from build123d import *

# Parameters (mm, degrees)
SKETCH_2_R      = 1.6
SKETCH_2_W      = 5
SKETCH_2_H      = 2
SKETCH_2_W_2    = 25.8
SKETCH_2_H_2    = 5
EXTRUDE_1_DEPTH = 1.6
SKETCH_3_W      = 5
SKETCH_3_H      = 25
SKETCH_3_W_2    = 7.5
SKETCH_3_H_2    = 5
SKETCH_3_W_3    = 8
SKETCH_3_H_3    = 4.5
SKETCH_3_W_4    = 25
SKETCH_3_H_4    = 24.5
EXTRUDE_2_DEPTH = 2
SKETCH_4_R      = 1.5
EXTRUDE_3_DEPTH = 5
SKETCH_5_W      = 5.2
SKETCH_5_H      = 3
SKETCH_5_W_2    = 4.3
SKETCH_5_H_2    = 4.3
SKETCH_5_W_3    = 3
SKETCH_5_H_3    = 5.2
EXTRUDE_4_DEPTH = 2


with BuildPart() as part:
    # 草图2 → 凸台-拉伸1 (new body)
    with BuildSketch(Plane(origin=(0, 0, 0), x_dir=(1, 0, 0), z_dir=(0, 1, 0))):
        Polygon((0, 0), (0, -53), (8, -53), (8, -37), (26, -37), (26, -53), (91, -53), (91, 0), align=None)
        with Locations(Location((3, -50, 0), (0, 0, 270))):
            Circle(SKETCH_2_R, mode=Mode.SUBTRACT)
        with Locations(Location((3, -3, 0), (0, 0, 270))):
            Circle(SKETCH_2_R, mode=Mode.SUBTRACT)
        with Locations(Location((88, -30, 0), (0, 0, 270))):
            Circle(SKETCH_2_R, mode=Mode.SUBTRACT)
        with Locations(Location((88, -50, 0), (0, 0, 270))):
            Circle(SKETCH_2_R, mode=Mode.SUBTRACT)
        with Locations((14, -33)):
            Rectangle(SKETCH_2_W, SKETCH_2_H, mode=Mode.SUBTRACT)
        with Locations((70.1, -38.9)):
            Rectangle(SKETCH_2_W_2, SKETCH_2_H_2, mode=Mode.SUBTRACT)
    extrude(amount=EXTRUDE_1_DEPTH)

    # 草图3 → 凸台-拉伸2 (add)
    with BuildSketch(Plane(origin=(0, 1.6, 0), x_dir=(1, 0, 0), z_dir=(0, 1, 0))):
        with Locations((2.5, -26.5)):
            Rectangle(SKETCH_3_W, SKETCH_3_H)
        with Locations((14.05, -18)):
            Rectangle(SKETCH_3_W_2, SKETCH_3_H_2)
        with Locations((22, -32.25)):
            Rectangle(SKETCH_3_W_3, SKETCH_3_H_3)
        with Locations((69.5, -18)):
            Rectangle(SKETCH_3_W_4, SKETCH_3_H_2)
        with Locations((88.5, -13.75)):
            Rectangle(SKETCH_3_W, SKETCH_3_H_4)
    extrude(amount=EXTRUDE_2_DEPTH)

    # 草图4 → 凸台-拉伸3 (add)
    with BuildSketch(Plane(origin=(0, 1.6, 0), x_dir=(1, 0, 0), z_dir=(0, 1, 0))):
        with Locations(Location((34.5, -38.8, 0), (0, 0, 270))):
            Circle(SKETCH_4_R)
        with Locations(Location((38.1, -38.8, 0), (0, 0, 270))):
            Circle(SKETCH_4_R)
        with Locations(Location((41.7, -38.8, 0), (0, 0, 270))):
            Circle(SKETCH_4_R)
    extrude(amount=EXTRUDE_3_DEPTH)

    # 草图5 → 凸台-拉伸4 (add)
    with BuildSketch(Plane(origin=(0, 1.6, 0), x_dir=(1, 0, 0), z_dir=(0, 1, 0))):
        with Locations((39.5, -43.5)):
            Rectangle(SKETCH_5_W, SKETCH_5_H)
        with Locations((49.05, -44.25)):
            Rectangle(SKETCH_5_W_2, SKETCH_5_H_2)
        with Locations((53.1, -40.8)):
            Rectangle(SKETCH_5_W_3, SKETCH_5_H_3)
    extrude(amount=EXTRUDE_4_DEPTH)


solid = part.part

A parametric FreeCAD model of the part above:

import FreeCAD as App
import Part
import Sketcher

doc = App.newDocument("Part")
body = doc.addObject("PartDesign::Body", "Body")

sketch1 = body.newObject("Sketcher::SketchObject", "Sketch")
sketch1.AttachmentSupport = (doc.getObject("XZ_Plane"), [""])
sketch1.MapMode = "FlatFace"
sketch1.addGeometry([
    Part.LineSegment(App.Vector(0, 0, 0), App.Vector(0, 53, 0)),
    Part.LineSegment(App.Vector(0, 53, 0), App.Vector(8, 53, 0)),
    Part.LineSegment(App.Vector(8, 53, 0), App.Vector(8, 37, 0)),
    Part.LineSegment(App.Vector(8, 37, 0), App.Vector(26, 37, 0)),
    Part.LineSegment(App.Vector(26, 37, 0), App.Vector(26, 53, 0)),
    Part.LineSegment(App.Vector(26, 53, 0), App.Vector(91, 53, 0)),
    Part.LineSegment(App.Vector(91, 53, 0), App.Vector(91, 0, 0)),
    Part.LineSegment(App.Vector(91, 0, 0), App.Vector(0, 0, 0)),
    Part.Circle(App.Vector(3, 50, 0), App.Vector(0, 0, 1), 1.6),
    Part.LineSegment(App.Vector(16.5, 34, 0), App.Vector(11.5, 34, 0)),
    Part.LineSegment(App.Vector(11.5, 34, 0), App.Vector(11.5, 32, 0)),
    Part.LineSegment(App.Vector(11.5, 32, 0), App.Vector(16.5, 32, 0)),
    Part.LineSegment(App.Vector(16.5, 32, 0), App.Vector(16.5, 34, 0)),
    Part.Circle(App.Vector(88, 50, 0), App.Vector(0, 0, 1), 1.6),
    Part.LineSegment(App.Vector(83, 41.4, 0), App.Vector(57.2, 41.4, 0)),
    Part.LineSegment(App.Vector(57.2, 41.4, 0), App.Vector(57.2, 36.4, 0)),
    Part.LineSegment(App.Vector(57.2, 36.4, 0), App.Vector(83, 36.4, 0)),
    Part.LineSegment(App.Vector(83, 36.4, 0), App.Vector(83, 41.4, 0)),
    Part.Circle(App.Vector(88, 30, 0), App.Vector(0, 0, 1), 1.6),
    Part.Circle(App.Vector(3, 3, 0), App.Vector(0, 0, 1), 1.6),
], False)
sketch1.addConstraint([
    Sketcher.Constraint("Coincident", 0, 2, 1, 1),
    Sketcher.Constraint("Coincident", 1, 2, 2, 1),
    Sketcher.Constraint("Coincident", 2, 2, 3, 1),
    Sketcher.Constraint("Coincident", 3, 2, 4, 1),
    Sketcher.Constraint("Coincident", 4, 2, 5, 1),
    Sketcher.Constraint("Coincident", 5, 2, 6, 1),
    Sketcher.Constraint("Coincident", 6, 2, 7, 1),
    Sketcher.Constraint("Coincident", 7, 2, 0, 1),
    Sketcher.Constraint("Coincident", 9, 2, 10, 1),
    Sketcher.Constraint("Coincident", 10, 2, 11, 1),
    Sketcher.Constraint("Coincident", 11, 2, 12, 1),
    Sketcher.Constraint("Coincident", 12, 2, 9, 1),
    Sketcher.Constraint("Coincident", 14, 2, 15, 1),
    Sketcher.Constraint("Coincident", 15, 2, 16, 1),
    Sketcher.Constraint("Coincident", 16, 2, 17, 1),
    Sketcher.Constraint("Coincident", 17, 2, 14, 1),
    Sketcher.Constraint("Vertical", 0),
    Sketcher.Constraint("Horizontal", 1),
    Sketcher.Constraint("Vertical", 2),
    Sketcher.Constraint("Horizontal", 3),
    Sketcher.Constraint("Vertical", 4),
    Sketcher.Constraint("Horizontal", 5),
    Sketcher.Constraint("Vertical", 6),
    Sketcher.Constraint("Horizontal", 7),
    Sketcher.Constraint("Horizontal", 9),
    Sketcher.Constraint("Vertical", 10),
    Sketcher.Constraint("Horizontal", 11),
    Sketcher.Constraint("Vertical", 12),
    Sketcher.Constraint("Horizontal", 14),
    Sketcher.Constraint("Vertical", 15),
    Sketcher.Constraint("Horizontal", 16),
    Sketcher.Constraint("Vertical", 17),
    Sketcher.Constraint("Coincident", 7, 2, -1, 1),
    Sketcher.Constraint("Equal", 8, 13),
    Sketcher.Constraint("Equal", 13, 18),
    Sketcher.Constraint("Equal", 18, 19),
    Sketcher.Constraint("Horizontal", 8, 3, 13, 3),
    Sketcher.Constraint("Horizontal", 1, 2, 4, 2),
    Sketcher.Constraint("Vertical", 13, 3, 18, 3),
    Sketcher.Constraint("Vertical", 8, 3, 19, 3),
    Sketcher.Constraint("Equal", 11, 15),
    Sketcher.Constraint("Diameter", 8, 3.2),
    Sketcher.Constraint("DistanceX", 1, 1, 1, 2, 8.0),
    Sketcher.Constraint("DistanceX", 3, 1, 3, 2, 18.0),
    Sketcher.Constraint("DistanceX", 5, 1, 5, 2, 65.0),
    Sketcher.Constraint("DistanceX", 9, 2, 9, 1, 5.0),
    Sketcher.Constraint("DistanceY", 0, 1, 0, 2, 53.0),
    Sketcher.Constraint("DistanceY", 2, 2, 2, 1, 16.0),
    Sketcher.Constraint("DistanceY", 10, 2, 10, 1, 2.0),
    Sketcher.Constraint("DistanceX", 14, 2, 14, 1, 25.8),
    Sketcher.Constraint("DistanceX", -1, 1, 8, 3, 3.0),
    Sketcher.Constraint("DistanceY", -1, 1, 8, 3, 50.0),
    Sketcher.Constraint("DistanceX", -1, 1, 13, 3, 88.0),
    Sketcher.Constraint("DistanceY", -1, 1, 18, 3, 30.0),
    Sketcher.Constraint("DistanceY", -1, 1, 19, 3, 3.0),
    Sketcher.Constraint("DistanceY", -1, 1, 9, 2, 34.0),
    Sketcher.Constraint("DistanceX", -1, 1, 16, 2, 83.0),
    Sketcher.Constraint("DistanceX", -1, 1, 9, 2, 11.5),
    Sketcher.Constraint("DistanceY", -1, 1, 14, 2, 41.4),
])
pad1 = body.newObject("PartDesign::Pad", "Pad")
pad1.Profile = sketch1
pad1.Length = 1.6
pad1.Reversed = True

sketch2 = body.newObject("Sketcher::SketchObject", "Sketch001")
sketch2.AttachmentSupport = (doc.getObject("XZ_Plane"), [""])
sketch2.MapMode = "FlatFace"
sketch2.AttachmentOffset = App.Placement(App.Vector(0, 0, -1.6), App.Rotation())
sketch2.addGeometry([
    Part.LineSegment(App.Vector(0, 14, 0), App.Vector(0, 39, 0)),
    Part.LineSegment(App.Vector(0, 39, 0), App.Vector(5, 39, 0)),
    Part.LineSegment(App.Vector(5, 39, 0), App.Vector(5, 14, 0)),
    Part.LineSegment(App.Vector(5, 14, 0), App.Vector(0, 14, 0)),
    Part.LineSegment(App.Vector(10.3, 15.5, 0), App.Vector(10.3, 20.5, 0)),
    Part.LineSegment(App.Vector(10.3, 20.5, 0), App.Vector(17.8, 20.5, 0)),
    Part.LineSegment(App.Vector(17.8, 20.5, 0), App.Vector(17.8, 15.5, 0)),
    Part.LineSegment(App.Vector(17.8, 15.5, 0), App.Vector(10.3, 15.5, 0)),
    Part.LineSegment(App.Vector(18, 30, 0), App.Vector(18, 34.5, 0)),
    Part.LineSegment(App.Vector(18, 34.5, 0), App.Vector(26, 34.5, 0)),
    Part.LineSegment(App.Vector(26, 34.5, 0), App.Vector(26, 30, 0)),
    Part.LineSegment(App.Vector(26, 30, 0), App.Vector(18, 30, 0)),
    Part.LineSegment(App.Vector(57, 15.5, 0), App.Vector(57, 20.5, 0)),
    Part.LineSegment(App.Vector(57, 20.5, 0), App.Vector(82, 20.5, 0)),
    Part.LineSegment(App.Vector(82, 20.5, 0), App.Vector(82, 15.5, 0)),
    Part.LineSegment(App.Vector(82, 15.5, 0), App.Vector(57, 15.5, 0)),
    Part.LineSegment(App.Vector(86, 1.5, 0), App.Vector(86, 26, 0)),
    Part.LineSegment(App.Vector(86, 26, 0), App.Vector(91, 26, 0)),
    Part.LineSegment(App.Vector(91, 26, 0), App.Vector(91, 1.5, 0)),
    Part.LineSegment(App.Vector(91, 1.5, 0), App.Vector(86, 1.5, 0)),
], False)
sketch2.addConstraint([
    Sketcher.Constraint("Coincident", 0, 2, 1, 1),
    Sketcher.Constraint("Coincident", 1, 2, 2, 1),
    Sketcher.Constraint("Coincident", 2, 2, 3, 1),
    Sketcher.Constraint("Coincident", 3, 2, 0, 1),
    Sketcher.Constraint("Coincident", 4, 2, 5, 1),
    Sketcher.Constraint("Coincident", 5, 2, 6, 1),
    Sketcher.Constraint("Coincident", 6, 2, 7, 1),
    Sketcher.Constraint("Coincident", 7, 2, 4, 1),
    Sketcher.Constraint("Coincident", 8, 2, 9, 1),
    Sketcher.Constraint("Coincident", 9, 2, 10, 1),
    Sketcher.Constraint("Coincident", 10, 2, 11, 1),
    Sketcher.Constraint("Coincident", 11, 2, 8, 1),
    Sketcher.Constraint("Coincident", 12, 2, 13, 1),
    Sketcher.Constraint("Coincident", 13, 2, 14, 1),
    Sketcher.Constraint("Coincident", 14, 2, 15, 1),
    Sketcher.Constraint("Coincident", 15, 2, 12, 1),
    Sketcher.Constraint("Coincident", 16, 2, 17, 1),
    Sketcher.Constraint("Coincident", 17, 2, 18, 1),
    Sketcher.Constraint("Coincident", 18, 2, 19, 1),
    Sketcher.Constraint("Coincident", 19, 2, 16, 1),
    Sketcher.Constraint("Vertical", 0),
    Sketcher.Constraint("Horizontal", 1),
    Sketcher.Constraint("Vertical", 2),
    Sketcher.Constraint("Horizontal", 3),
    Sketcher.Constraint("Vertical", 4),
    Sketcher.Constraint("Horizontal", 5),
    Sketcher.Constraint("Vertical", 6),
    Sketcher.Constraint("Horizontal", 7),
    Sketcher.Constraint("Vertical", 8),
    Sketcher.Constraint("Horizontal", 9),
    Sketcher.Constraint("Vertical", 10),
    Sketcher.Constraint("Horizontal", 11),
    Sketcher.Constraint("Vertical", 12),
    Sketcher.Constraint("Horizontal", 13),
    Sketcher.Constraint("Vertical", 14),
    Sketcher.Constraint("Horizontal", 15),
    Sketcher.Constraint("Vertical", 16),
    Sketcher.Constraint("Horizontal", 17),
    Sketcher.Constraint("Vertical", 18),
    Sketcher.Constraint("Horizontal", 19),
    Sketcher.Constraint("PointOnObject", 0, 2, -2),
    Sketcher.Constraint("Horizontal", 5, 2, 12, 2),
    Sketcher.Constraint("Horizontal", 7, 2, 14, 2),
    Sketcher.Constraint("Equal", 3, 17),
    Sketcher.Constraint("Equal", 15, 0),
    Sketcher.Constraint("Equal", 19, 4),
    Sketcher.Constraint("DistanceX", 1, 1, 1, 2, 5.0),
    Sketcher.Constraint("DistanceX", 9, 1, 9, 2, 8.0),
    Sketcher.Constraint("DistanceX", 13, 1, 13, 2, 25.0),
    Sketcher.Constraint("DistanceX", 5, 1, 5, 2, 7.5),
    Sketcher.Constraint("DistanceY", 8, 1, 8, 2, 4.5),
    Sketcher.Constraint("DistanceY", 16, 1, 16, 2, 24.5),
    Sketcher.Constraint("DistanceY", -1, 1, 0, 2, 39.0),
    Sketcher.Constraint("DistanceX", -1, 1, 8, 2, 18.0),
    Sketcher.Constraint("DistanceY", -1, 1, 10, 2, 30.0),
    Sketcher.Constraint("DistanceX", -1, 1, 12, 2, 57.0),
    Sketcher.Constraint("DistanceX", -1, 1, 16, 2, 86.0),
    Sketcher.Constraint("DistanceY", -1, 1, 16, 2, 26.0),
    Sketcher.Constraint("DistanceY", 5, 2, 8, 2, 14.0),
    Sketcher.Constraint("DistanceX", -1, 1, 4, 2, 10.3),
])
pad2 = body.newObject("PartDesign::Pad", "Pad001")
pad2.Profile = sketch2
pad2.Length = 2
pad2.Reversed = True

sketch3 = body.newObject("Sketcher::SketchObject", "Sketch002")
sketch3.AttachmentSupport = (doc.getObject("XZ_Plane"), [""])
sketch3.MapMode = "FlatFace"
sketch3.AttachmentOffset = App.Placement(App.Vector(0, 0, -1.6), App.Rotation())
sketch3.addGeometry([
    Part.Circle(App.Vector(34.5, 38.8, 0), App.Vector(0, 0, 1), 1.5),
    Part.Circle(App.Vector(38.1, 38.8, 0), App.Vector(0, 0, 1), 1.5),
    Part.Circle(App.Vector(41.7, 38.8, 0), App.Vector(0, 0, 1), 1.5),
], False)
sketch3.addConstraint([
    Sketcher.Constraint("Equal", 0, 1),
    Sketcher.Constraint("Equal", 1, 2),
    Sketcher.Constraint("Horizontal", 0, 3, 1, 3),
    Sketcher.Constraint("Horizontal", 1, 3, 2, 3),
    Sketcher.Constraint("Diameter", 0, 3.0),
    Sketcher.Constraint("DistanceX", -1, 1, 0, 3, 34.5),
    Sketcher.Constraint("DistanceY", -1, 1, 0, 3, 38.8),
    Sketcher.Constraint("DistanceX", -1, 1, 1, 3, 38.1),
    Sketcher.Constraint("DistanceX", -1, 1, 2, 3, 41.7),
])
pad3 = body.newObject("PartDesign::Pad", "Pad002")
pad3.Profile = sketch3
pad3.Length = 5
pad3.Reversed = True

sketch4 = body.newObject("Sketcher::SketchObject", "Sketch003")
sketch4.AttachmentSupport = (doc.getObject("XZ_Plane"), [""])
sketch4.MapMode = "FlatFace"
sketch4.AttachmentOffset = App.Placement(App.Vector(0, 0, -1.6), App.Rotation())
sketch4.addGeometry([
    Part.LineSegment(App.Vector(36.9, 42, 0), App.Vector(36.9, 45, 0)),
    Part.LineSegment(App.Vector(36.9, 45, 0), App.Vector(42.1, 45, 0)),
    Part.LineSegment(App.Vector(42.1, 45, 0), App.Vector(42.1, 42, 0)),
    Part.LineSegment(App.Vector(42.1, 42, 0), App.Vector(36.9, 42, 0)),
    Part.LineSegment(App.Vector(46.9, 42.1, 0), App.Vector(46.9, 46.4, 0)),
    Part.LineSegment(App.Vector(46.9, 46.4, 0), App.Vector(51.2, 46.4, 0)),
    Part.LineSegment(App.Vector(51.2, 46.4, 0), App.Vector(51.2, 42.1, 0)),
    Part.LineSegment(App.Vector(51.2, 42.1, 0), App.Vector(46.9, 42.1, 0)),
    Part.LineSegment(App.Vector(51.6, 38.2, 0), App.Vector(51.6, 43.4, 0)),
    Part.LineSegment(App.Vector(51.6, 43.4, 0), App.Vector(54.6, 43.4, 0)),
    Part.LineSegment(App.Vector(54.6, 43.4, 0), App.Vector(54.6, 38.2, 0)),
    Part.LineSegment(App.Vector(54.6, 38.2, 0), App.Vector(51.6, 38.2, 0)),
], False)
sketch4.addConstraint([
    Sketcher.Constraint("Coincident", 0, 2, 1, 1),
    Sketcher.Constraint("Coincident", 1, 2, 2, 1),
    Sketcher.Constraint("Coincident", 2, 2, 3, 1),
    Sketcher.Constraint("Coincident", 3, 2, 0, 1),
    Sketcher.Constraint("Coincident", 4, 2, 5, 1),
    Sketcher.Constraint("Coincident", 5, 2, 6, 1),
    Sketcher.Constraint("Coincident", 6, 2, 7, 1),
    Sketcher.Constraint("Coincident", 7, 2, 4, 1),
    Sketcher.Constraint("Coincident", 8, 2, 9, 1),
    Sketcher.Constraint("Coincident", 9, 2, 10, 1),
    Sketcher.Constraint("Coincident", 10, 2, 11, 1),
    Sketcher.Constraint("Coincident", 11, 2, 8, 1),
    Sketcher.Constraint("Vertical", 0),
    Sketcher.Constraint("Horizontal", 1),
    Sketcher.Constraint("Vertical", 2),
    Sketcher.Constraint("Horizontal", 3),
    Sketcher.Constraint("Vertical", 4),
    Sketcher.Constraint("Horizontal", 5),
    Sketcher.Constraint("Vertical", 6),
    Sketcher.Constraint("Horizontal", 7),
    Sketcher.Constraint("Vertical", 8),
    Sketcher.Constraint("Horizontal", 9),
    Sketcher.Constraint("Vertical", 10),
    Sketcher.Constraint("Horizontal", 11),
    Sketcher.Constraint("Equal", 11, 0),
    Sketcher.Constraint("Equal", 7, 4),
    Sketcher.Constraint("Equal", 3, 8),
    Sketcher.Constraint("DistanceX", 9, 1, 9, 2, 3.0),
    Sketcher.Constraint("DistanceX", 1, 1, 1, 2, 5.2),
    Sketcher.Constraint("DistanceX", 5, 1, 5, 2, 4.3),
    Sketcher.Constraint("DistanceY", -1, 1, 0, 2, 45.0),
    Sketcher.Constraint("DistanceX", 0, 2, 4, 2, 10.0),
    Sketcher.Constraint("DistanceY", 8, 2, 5, 2, 3.0),
    Sketcher.Constraint("DistanceX", -1, 1, 0, 2, 36.9),
    Sketcher.Constraint("DistanceY", -1, 1, 4, 2, 46.4),
    Sketcher.Constraint("DistanceX", -1, 1, 8, 2, 51.6),
])
pad4 = body.newObject("PartDesign::Pad", "Pad003")
pad4.Profile = sketch4
pad4.Length = 2
pad4.Reversed = True

doc.recompute()
